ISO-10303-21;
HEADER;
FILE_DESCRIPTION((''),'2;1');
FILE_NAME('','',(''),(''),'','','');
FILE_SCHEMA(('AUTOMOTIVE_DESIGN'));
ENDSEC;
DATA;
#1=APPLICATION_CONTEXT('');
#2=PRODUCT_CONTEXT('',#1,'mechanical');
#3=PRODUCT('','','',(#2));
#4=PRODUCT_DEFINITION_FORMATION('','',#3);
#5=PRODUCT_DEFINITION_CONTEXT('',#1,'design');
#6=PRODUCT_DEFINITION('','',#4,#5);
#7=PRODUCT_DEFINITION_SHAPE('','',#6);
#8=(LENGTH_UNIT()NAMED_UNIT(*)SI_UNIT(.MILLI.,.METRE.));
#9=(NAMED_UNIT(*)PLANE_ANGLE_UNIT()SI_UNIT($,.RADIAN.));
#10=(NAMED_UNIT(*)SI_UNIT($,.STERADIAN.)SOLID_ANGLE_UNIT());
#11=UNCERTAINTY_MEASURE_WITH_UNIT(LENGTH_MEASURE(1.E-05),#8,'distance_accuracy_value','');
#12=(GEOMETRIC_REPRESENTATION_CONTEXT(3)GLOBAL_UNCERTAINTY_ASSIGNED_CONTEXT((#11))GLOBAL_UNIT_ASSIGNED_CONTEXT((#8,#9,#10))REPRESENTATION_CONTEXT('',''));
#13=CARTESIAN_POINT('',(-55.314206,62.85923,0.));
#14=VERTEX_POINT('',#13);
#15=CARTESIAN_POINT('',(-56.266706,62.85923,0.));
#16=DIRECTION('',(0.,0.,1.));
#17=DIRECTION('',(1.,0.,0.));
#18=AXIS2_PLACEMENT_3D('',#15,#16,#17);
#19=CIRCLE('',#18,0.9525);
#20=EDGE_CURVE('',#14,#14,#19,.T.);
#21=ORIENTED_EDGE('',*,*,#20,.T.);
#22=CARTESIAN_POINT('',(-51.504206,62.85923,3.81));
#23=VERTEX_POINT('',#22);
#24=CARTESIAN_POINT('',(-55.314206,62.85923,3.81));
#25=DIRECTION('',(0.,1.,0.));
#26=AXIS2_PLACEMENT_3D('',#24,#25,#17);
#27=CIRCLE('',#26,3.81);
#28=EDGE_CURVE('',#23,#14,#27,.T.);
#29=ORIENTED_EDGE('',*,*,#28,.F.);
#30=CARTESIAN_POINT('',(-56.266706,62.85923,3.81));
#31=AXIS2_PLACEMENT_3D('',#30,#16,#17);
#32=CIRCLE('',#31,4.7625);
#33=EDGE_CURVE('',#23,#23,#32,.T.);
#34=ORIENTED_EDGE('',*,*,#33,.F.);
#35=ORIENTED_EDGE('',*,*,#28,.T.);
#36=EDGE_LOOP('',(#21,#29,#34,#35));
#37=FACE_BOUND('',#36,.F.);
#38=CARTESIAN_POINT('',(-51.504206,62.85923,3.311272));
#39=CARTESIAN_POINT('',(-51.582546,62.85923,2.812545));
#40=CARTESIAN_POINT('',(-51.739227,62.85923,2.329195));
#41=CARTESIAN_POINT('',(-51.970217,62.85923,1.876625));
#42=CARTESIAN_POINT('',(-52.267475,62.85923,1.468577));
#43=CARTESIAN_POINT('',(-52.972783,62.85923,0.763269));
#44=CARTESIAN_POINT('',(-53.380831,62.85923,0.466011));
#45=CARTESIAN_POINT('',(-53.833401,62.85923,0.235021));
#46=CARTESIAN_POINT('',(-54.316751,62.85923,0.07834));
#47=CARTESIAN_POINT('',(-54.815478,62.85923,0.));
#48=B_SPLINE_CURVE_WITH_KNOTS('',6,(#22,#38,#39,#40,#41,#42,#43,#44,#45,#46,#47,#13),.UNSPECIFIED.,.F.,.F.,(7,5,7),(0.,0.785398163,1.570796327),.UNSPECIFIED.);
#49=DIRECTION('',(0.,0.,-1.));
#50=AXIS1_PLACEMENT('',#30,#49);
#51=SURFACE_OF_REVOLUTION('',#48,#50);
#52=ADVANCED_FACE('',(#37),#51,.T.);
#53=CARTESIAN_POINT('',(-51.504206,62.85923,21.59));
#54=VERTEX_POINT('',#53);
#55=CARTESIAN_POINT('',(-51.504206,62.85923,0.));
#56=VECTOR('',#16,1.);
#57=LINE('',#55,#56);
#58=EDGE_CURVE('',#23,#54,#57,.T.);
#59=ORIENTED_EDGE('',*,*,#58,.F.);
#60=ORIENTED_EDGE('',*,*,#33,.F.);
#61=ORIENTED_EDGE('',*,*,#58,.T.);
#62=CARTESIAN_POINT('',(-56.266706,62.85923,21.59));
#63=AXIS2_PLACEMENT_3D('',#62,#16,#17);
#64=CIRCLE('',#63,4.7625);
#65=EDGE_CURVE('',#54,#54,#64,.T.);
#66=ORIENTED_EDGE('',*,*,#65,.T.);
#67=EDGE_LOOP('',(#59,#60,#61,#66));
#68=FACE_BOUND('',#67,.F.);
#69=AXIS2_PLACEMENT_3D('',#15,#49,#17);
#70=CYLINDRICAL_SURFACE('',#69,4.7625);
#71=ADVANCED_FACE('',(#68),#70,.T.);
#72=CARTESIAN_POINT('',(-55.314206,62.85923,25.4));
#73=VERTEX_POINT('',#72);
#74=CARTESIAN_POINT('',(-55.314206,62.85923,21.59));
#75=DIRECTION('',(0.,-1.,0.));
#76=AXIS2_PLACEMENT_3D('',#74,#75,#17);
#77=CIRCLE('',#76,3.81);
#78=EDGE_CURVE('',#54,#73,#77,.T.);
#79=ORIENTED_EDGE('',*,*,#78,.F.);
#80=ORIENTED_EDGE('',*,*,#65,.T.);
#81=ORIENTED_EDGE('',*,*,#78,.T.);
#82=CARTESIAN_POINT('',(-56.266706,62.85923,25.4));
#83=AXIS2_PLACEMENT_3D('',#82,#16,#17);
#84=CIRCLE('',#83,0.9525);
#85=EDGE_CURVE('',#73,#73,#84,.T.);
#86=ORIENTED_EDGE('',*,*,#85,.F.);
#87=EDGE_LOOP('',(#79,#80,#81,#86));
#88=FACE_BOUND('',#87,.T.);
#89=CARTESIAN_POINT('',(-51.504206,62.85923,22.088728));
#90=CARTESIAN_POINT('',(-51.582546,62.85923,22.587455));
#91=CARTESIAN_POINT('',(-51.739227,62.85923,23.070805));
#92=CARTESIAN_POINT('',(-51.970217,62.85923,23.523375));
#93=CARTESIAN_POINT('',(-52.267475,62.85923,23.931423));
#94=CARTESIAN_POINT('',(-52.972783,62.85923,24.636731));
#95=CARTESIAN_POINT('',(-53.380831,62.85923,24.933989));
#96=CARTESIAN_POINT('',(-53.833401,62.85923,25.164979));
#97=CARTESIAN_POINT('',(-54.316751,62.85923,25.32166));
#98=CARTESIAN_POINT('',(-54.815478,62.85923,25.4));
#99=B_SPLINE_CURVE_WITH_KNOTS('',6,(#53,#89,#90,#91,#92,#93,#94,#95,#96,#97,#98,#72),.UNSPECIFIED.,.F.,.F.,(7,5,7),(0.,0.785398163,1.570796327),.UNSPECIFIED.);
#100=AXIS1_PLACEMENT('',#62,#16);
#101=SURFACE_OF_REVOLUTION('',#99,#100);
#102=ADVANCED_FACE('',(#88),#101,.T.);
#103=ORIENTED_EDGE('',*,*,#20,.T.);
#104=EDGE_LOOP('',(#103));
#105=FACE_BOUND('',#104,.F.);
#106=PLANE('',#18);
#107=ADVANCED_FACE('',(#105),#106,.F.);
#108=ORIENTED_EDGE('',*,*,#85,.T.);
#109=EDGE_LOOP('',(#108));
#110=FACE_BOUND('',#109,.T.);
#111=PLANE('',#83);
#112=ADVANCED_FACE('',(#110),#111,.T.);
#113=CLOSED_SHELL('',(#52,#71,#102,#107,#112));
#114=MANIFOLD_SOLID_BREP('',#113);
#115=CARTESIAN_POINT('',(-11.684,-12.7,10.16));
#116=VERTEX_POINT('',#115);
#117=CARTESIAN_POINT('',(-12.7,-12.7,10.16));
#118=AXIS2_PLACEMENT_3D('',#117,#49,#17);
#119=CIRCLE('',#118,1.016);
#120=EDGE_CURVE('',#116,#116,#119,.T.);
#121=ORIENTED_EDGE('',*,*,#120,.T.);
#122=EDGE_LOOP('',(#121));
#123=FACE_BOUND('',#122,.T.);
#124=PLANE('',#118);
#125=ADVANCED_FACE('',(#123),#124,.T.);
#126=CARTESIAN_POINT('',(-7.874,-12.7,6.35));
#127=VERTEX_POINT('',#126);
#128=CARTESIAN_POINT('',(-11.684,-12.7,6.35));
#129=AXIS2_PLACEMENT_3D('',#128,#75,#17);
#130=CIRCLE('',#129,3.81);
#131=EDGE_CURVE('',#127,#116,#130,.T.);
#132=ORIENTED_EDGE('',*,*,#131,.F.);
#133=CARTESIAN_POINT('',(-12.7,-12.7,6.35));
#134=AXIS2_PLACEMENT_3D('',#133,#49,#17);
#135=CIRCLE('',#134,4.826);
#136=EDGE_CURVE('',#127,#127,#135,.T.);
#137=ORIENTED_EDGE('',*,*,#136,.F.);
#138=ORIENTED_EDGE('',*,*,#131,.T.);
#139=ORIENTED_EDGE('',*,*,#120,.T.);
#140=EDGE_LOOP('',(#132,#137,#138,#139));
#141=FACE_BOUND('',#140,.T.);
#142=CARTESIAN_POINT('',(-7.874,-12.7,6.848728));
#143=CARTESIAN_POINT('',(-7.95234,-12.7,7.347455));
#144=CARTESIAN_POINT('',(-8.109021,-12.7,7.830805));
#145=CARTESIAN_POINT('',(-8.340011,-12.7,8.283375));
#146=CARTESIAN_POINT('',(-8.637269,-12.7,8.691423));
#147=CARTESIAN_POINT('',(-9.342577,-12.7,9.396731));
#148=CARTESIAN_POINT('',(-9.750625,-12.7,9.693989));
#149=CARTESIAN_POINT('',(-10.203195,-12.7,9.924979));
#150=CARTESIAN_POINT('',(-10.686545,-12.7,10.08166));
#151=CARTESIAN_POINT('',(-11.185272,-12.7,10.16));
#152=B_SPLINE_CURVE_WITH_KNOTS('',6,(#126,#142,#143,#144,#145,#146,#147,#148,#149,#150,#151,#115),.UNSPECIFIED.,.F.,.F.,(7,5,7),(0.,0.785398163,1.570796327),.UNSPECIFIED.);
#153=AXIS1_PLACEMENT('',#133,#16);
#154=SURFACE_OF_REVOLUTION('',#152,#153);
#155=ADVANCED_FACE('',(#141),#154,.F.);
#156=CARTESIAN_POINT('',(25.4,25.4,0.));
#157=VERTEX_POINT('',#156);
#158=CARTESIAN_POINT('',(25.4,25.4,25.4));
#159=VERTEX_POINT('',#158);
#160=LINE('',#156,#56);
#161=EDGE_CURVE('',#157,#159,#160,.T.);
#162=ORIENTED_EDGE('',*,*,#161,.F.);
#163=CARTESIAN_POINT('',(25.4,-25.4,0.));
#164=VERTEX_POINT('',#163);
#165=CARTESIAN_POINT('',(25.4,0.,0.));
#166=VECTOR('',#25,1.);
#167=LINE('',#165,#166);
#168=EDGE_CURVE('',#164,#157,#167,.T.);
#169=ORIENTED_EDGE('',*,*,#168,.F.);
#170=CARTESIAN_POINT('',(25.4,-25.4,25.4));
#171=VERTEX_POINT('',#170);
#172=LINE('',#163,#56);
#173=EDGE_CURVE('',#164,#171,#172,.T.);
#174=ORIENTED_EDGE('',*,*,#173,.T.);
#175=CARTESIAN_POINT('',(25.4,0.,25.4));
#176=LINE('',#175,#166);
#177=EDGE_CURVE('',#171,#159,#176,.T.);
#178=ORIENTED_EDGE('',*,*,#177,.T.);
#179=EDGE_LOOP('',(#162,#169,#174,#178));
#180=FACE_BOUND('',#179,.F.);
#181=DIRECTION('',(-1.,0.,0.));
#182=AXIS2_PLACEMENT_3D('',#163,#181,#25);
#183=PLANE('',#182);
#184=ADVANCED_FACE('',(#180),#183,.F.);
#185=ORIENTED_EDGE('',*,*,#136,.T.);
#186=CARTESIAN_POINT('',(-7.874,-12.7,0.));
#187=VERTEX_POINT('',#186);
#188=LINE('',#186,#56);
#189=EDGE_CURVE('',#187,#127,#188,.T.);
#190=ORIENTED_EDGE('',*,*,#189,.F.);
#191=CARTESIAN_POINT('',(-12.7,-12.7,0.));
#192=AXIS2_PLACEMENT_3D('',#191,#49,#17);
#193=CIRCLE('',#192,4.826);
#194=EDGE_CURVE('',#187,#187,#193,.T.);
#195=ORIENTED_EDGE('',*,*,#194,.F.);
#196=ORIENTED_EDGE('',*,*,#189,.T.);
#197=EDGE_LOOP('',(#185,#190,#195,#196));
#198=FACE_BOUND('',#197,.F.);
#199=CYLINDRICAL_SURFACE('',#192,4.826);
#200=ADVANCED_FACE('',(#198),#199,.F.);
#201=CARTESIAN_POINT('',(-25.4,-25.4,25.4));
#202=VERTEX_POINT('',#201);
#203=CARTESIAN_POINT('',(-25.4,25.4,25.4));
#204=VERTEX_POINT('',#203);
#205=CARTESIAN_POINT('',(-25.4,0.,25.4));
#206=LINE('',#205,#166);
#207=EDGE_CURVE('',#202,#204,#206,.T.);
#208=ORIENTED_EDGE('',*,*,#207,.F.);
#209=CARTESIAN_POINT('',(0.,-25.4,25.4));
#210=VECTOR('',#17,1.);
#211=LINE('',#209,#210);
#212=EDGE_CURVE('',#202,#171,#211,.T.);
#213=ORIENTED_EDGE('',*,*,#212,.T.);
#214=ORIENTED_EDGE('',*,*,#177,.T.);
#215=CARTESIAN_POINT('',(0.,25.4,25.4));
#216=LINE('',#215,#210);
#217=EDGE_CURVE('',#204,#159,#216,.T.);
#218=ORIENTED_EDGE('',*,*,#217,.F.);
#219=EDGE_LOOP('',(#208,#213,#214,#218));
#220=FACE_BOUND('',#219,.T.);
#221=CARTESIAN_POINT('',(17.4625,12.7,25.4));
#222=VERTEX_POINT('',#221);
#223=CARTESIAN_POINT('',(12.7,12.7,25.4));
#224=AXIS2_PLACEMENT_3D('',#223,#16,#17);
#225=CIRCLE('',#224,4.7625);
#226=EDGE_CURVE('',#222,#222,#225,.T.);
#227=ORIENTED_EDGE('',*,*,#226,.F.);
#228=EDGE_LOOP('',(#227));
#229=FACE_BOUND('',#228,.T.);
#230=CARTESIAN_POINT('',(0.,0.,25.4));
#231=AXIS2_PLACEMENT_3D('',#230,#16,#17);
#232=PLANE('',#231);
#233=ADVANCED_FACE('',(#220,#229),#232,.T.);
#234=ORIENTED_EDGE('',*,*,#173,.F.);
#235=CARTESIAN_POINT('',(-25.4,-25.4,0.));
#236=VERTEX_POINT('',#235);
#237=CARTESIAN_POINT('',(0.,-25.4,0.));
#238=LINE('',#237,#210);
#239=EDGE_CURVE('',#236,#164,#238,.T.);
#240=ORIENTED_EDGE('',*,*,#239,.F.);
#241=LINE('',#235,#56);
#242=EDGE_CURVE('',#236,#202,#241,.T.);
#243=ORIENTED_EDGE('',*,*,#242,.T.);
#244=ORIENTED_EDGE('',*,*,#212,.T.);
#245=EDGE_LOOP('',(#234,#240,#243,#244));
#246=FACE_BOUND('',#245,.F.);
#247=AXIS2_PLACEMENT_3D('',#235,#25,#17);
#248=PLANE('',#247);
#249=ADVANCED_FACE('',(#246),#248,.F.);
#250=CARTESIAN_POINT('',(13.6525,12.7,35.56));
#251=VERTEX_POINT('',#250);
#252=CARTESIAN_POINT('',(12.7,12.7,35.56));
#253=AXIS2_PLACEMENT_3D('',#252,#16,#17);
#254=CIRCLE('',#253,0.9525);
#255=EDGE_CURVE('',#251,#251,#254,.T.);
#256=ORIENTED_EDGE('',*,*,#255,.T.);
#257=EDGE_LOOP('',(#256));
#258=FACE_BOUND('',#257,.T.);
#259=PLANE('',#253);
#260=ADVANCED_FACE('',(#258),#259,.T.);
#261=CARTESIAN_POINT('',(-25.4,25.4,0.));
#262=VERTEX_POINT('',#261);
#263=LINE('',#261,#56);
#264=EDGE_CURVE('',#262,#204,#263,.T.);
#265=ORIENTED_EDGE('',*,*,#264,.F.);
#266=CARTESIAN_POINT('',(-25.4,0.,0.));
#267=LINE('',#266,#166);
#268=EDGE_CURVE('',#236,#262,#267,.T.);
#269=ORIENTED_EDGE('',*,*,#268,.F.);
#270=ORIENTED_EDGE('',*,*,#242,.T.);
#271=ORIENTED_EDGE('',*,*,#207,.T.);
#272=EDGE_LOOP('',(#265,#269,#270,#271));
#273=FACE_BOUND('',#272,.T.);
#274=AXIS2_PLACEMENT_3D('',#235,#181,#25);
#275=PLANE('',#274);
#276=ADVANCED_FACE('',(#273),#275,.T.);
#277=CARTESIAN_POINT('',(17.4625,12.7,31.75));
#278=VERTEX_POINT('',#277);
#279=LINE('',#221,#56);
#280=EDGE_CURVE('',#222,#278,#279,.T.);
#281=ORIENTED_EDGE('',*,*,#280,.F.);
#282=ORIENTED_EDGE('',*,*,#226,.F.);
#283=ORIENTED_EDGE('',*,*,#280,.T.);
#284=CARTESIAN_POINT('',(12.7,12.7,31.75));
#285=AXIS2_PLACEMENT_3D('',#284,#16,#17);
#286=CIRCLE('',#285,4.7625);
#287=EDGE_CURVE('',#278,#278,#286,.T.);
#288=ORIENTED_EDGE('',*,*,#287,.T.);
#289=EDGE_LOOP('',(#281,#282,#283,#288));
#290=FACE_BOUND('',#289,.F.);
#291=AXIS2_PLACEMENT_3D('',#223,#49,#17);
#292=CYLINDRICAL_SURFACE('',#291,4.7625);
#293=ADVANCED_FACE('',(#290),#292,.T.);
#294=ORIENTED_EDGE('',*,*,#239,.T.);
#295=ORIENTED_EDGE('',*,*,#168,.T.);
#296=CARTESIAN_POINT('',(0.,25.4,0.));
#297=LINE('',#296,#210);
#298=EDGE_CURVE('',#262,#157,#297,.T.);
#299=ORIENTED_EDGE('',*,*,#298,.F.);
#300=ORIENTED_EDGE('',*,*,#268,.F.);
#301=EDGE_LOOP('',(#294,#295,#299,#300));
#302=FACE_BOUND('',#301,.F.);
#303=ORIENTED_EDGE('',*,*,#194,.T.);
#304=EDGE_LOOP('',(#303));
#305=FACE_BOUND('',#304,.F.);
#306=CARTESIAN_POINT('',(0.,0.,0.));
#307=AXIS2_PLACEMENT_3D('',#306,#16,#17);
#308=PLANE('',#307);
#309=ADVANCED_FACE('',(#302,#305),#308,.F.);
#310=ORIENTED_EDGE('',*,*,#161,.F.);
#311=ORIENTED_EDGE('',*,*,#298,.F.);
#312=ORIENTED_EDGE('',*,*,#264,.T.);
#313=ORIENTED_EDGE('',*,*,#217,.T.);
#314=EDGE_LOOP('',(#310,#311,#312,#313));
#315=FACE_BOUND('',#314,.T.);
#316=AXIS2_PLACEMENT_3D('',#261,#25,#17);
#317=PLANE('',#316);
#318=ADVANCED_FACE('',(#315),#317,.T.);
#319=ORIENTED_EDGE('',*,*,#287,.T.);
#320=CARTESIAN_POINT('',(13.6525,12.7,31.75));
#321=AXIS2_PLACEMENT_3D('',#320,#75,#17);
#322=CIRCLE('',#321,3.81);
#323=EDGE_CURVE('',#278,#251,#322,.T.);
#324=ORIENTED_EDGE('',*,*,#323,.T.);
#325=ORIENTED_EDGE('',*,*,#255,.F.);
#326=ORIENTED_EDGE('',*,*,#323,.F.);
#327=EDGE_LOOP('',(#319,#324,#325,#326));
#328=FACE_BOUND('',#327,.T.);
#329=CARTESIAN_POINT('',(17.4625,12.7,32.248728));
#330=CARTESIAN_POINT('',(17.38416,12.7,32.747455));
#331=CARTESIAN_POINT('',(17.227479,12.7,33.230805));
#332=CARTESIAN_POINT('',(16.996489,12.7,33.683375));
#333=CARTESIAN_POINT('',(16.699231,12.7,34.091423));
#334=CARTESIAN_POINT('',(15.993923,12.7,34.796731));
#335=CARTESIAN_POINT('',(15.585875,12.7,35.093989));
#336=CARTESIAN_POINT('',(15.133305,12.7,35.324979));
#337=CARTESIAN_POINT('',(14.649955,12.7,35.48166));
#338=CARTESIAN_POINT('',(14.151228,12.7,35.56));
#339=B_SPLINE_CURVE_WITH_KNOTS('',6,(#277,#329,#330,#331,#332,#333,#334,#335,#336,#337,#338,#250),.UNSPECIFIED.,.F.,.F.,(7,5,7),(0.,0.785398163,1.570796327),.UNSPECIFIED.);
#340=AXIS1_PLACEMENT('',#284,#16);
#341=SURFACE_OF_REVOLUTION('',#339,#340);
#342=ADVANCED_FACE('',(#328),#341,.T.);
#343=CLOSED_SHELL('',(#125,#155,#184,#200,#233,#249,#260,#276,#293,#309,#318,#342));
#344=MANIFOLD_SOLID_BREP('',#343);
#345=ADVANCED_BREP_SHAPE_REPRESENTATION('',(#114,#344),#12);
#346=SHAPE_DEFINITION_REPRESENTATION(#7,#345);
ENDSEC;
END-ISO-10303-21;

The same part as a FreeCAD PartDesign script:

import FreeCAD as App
import Part
import Sketcher
from FreeCAD import Vector
Q = App.Units.Quantity


def edges_at(feature, points):
    """Names of the edges that pass closest to the given points."""
    edges = feature.Shape.Edges
    near = lambda p: min(range(len(edges)), key=lambda i: edges[i].distToShape(Part.Vertex(*p))[0])
    return sorted({f"Edge{near(p) + 1}" for p in points})


def add_polygon(sketch, points):
    """Adds a closed chain of lines whose ends are joined by coincident constraints."""
    first, n = sketch.GeometryCount, len(points)
    for a, b in zip(points, points[1:] + points[:1]):
        sketch.addGeometry(Part.LineSegment(App.Vector(*a, 0), App.Vector(*b, 0)), False)
    for i in range(n):
        sketch.addConstraint(Sketcher.Constraint("Coincident", first + i, 2, first + (i + 1) % n, 1))

doc = App.newDocument("Part")
body = doc.addObject("PartDesign::Body", "Body")

sketch1 = body.newObject("Sketcher::SketchObject", "Sketch")
sketch1.AttachmentSupport = (doc.getObject("XY_Plane"), [""])
sketch1.MapMode = "FlatFace"
add_polygon(sketch1, [(-25, 25), (-25, -25), (25, -25), (25, 25)])
sketch1.addConstraint([
    Sketcher.Constraint("Vertical", 0),
    Sketcher.Constraint("Horizontal", 1),
    Sketcher.Constraint("Vertical", 2),
    Sketcher.Constraint("Horizontal", 3),
    Sketcher.Constraint("Symmetric", 0, 2, 2, 2, -1, 1),
    Sketcher.Constraint("Equal", 3, 0),
    Sketcher.Constraint("DistanceX", 1, 1, 1, 2, Q("2 in")),
])
pad1 = body.newObject("PartDesign::Pad", "Pad")
pad1.Profile = sketch1
pad1.Length = Q("1 in")

sketch2 = body.newObject("Sketcher::SketchObject", "Sketch001")
sketch2.AttachmentSupport = (doc.getObject("XY_Plane"), [""])
sketch2.MapMode = "FlatFace"
sketch2.AttachmentOffset = App.Placement(Vector(0, 0, 1 * 25.4), App.Rotation())
sketch2.addGeometry(Part.Circle(Vector(12.7, 12.7, 0), Vector(0, 0, 1), 4.8), False)
sketch2.addConstraint([
    Sketcher.Constraint("Diameter", 0, Q("0.375 in")),
    Sketcher.Constraint("DistanceX", -1, 1, 0, 3, Q("0.5 in")),
    Sketcher.Constraint("DistanceY", -1, 1, 0, 3, Q("0.5 in")),
])
pad2 = body.newObject("PartDesign::Pad", "Pad001")
pad2.Profile = sketch2
pad2.Length = Q("0.4 in")
doc.recompute()

fillet = body.newObject("PartDesign::Fillet", "Fillet")
fillet.Base = (pad2, edges_at(pad2, [(7.938, 12.7, 35.56)]))
fillet.Radius = Q("0.15 in")

sketch3 = body.newObject("Sketcher::SketchObject", "Sketch002")
sketch3.AttachmentSupport = (doc.getObject("XY_Plane"), [""])
sketch3.MapMode = "FlatFace"
sketch3.addGeometry(Part.Circle(Vector(-12.7, -12.7, 0), Vector(0, 0, 1), 4.8), False)
sketch3.addConstraint([
    Sketcher.Constraint("Diameter", 0, Q("0.38 in")),
    Sketcher.Constraint("DistanceX", 0, 3, -1, 1, Q("0.5 in")),
    Sketcher.Constraint("DistanceY", 0, 3, -1, 1, Q("0.5 in")),
])
pocket1 = body.newObject("PartDesign::Pocket", "Pocket")
pocket1.Profile = sketch3
pocket1.Length = Q("0.4 in")
pocket1.Reversed = True
doc.recompute()

fillet2 = body.newObject("PartDesign::Fillet", "Fillet001")
fillet2.Base = (pocket1, edges_at(pocket1, [(-17.526, -12.7, 10.16)]))
fillet2.Radius = Q("0.15 in")
body2 = doc.addObject("PartDesign::Body", "Body001")

sketch4 = body2.newObject("Sketcher::SketchObject", "Sketch003")
sketch4.AttachmentSupport = (doc.getObject("XY_Plane001"), [""])
sketch4.MapMode = "FlatFace"
sketch4.addGeometry(Part.Circle(Vector(-56.3, 62.9, 0), Vector(0, 0, 1), 4.8), False)
sketch4.addConstraint([
    Sketcher.Constraint("Diameter", 0, Q("0.375 in")),
    Sketcher.Constraint("DistanceY", -1, 1, 0, 3, Q("62.85923 mm")),
    Sketcher.Constraint("DistanceX", 0, 3, -1, 1, Q("56.266706 mm")),
])
pad3 = body2.newObject("PartDesign::Pad", "Pad002")
pad3.Profile = sketch4
pad3.Length = Q("1 in")
doc.recompute()

fillet3 = body2.newObject("PartDesign::Fillet", "Fillet002")
fillet3.Base = (pad3, edges_at(pad3, [(-61.029, 62.859, 25.4), (-61.029, 62.859, 0)]))
fillet3.Radius = Q("0.15 in")

doc.recompute()
